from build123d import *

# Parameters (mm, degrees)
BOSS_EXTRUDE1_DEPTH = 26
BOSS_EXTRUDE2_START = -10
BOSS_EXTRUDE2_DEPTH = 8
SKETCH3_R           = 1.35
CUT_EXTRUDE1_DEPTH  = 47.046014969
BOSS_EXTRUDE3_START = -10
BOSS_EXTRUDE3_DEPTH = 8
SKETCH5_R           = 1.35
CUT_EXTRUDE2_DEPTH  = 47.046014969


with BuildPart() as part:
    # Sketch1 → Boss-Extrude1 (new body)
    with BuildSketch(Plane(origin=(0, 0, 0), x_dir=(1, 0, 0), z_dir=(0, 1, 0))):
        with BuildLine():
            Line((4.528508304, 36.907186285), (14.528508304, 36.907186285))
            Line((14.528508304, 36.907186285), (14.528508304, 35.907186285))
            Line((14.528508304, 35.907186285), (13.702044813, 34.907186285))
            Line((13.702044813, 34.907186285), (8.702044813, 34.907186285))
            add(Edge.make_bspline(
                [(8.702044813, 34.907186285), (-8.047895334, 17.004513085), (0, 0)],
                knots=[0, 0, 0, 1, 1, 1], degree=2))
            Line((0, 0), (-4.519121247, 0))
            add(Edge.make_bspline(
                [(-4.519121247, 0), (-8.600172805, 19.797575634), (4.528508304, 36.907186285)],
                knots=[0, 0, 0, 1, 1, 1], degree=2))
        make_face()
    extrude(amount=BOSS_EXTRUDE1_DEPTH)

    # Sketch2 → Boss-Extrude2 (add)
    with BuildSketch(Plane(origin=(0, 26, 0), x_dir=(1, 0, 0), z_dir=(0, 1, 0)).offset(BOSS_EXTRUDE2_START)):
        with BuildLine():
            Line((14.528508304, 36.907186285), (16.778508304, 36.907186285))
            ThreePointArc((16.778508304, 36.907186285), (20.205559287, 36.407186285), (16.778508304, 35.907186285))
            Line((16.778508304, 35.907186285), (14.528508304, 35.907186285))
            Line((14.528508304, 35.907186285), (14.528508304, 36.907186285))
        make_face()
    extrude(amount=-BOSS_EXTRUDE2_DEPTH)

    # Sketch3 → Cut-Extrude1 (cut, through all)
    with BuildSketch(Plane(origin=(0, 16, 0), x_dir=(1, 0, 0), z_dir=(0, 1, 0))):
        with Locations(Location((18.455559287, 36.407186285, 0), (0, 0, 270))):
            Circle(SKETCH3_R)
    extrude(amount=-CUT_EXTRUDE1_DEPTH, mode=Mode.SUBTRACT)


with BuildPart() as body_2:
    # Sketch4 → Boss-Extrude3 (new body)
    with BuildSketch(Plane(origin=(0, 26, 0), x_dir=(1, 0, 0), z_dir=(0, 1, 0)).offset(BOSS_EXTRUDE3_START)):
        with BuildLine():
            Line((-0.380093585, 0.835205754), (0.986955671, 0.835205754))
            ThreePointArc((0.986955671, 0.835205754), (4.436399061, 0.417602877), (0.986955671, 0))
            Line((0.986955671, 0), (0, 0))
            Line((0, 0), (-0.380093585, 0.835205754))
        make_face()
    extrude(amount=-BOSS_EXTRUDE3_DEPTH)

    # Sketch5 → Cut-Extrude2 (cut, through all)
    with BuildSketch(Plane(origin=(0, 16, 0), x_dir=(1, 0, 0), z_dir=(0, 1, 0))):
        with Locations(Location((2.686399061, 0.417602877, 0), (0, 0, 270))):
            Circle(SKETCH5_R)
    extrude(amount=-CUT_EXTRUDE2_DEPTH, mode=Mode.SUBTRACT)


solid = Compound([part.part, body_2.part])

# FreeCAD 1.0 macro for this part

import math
import FreeCAD as App
import Part
import Sketcher

V = App.Vector
Q = App.Units.Quantity

doc = App.newDocument("Part")
params = doc.addObject("Spreadsheet::Sheet", "Params")
for row, (alias, value) in enumerate([
    ("sketch1_width", "10 mm"),
    ("sketch1_width2", "5 mm"),
    ("sketch1_height", "1 mm"),
    ("pad1_length", "26 mm"),
    ("sketch2_height", "1 mm"),
    ("sketch2_radius", "1.75 mm"),
    ("sketch2_width", "2.25 mm"),
    ("pad2_length", "8 mm"),
    ("sketch3_diameter", "2.7 mm"),
    ("sketch4_radius", "1.75 mm"),
    ("pad3_length", "8 mm"),
    ("sketch5_diameter", "2.7 mm"),
], start=1):
    params.set(f"A{row}", alias)
    params.set(f"B{row}", "=" + value)
    params.setAlias(f"B{row}", alias)

body = doc.addObject("PartDesign::Body", "Body")

# Sketch on XZ plane
sketch1 = doc.addObject("Sketcher::SketchObject", "Sketch")
body.addObject(sketch1)
sketch1.AttachmentSupport = (doc.XZ_Plane, [""])
sketch1.MapMode = "FlatFace"
sketch1.addGeometry(Part.LineSegment(V(14.528508, -36.907186, 0), V(4.528508, -36.907186, 0)), False)
sketch1.addGeometry(Part.BSplineCurve([V(-4.519121, 0, 0), V(-8.600173, -19.797576, 0), V(4.528508, -36.907186, 0)], [3, 3], [0, 1], False, 2, [1, 1, 1], False), False)
sketch1.addGeometry(Part.LineSegment(V(-4.519121, 0, 0), V(0, 0, 0)), False)
sketch1.addGeometry(Part.BSplineCurve([V(8.702045, -34.907186, 0), V(-8.047895, -17.004513, 0), V(0, 0, 0)], [3, 3], [0, 1], False, 2, [1, 1, 1], False), False)
sketch1.addGeometry(Part.LineSegment(V(8.702045, -34.907186, 0), V(13.702045, -34.907186, 0)), False)
sketch1.addGeometry(Part.LineSegment(V(13.702045, -34.907186, 0), V(14.528508, -35.907186, 0)), False)
sketch1.addGeometry(Part.LineSegment(V(14.528508, -35.907186, 0), V(14.528508, -36.907186, 0)), False)
sketch1.addConstraint(Sketcher.Constraint("Block", 1))
sketch1.addConstraint(Sketcher.Constraint("Block", 3))
sketch1.addConstraint(Sketcher.Constraint("Coincident", 0, 2, 1, 2))
sketch1.addConstraint(Sketcher.Constraint("Coincident", 1, 1, 2, 1))
sketch1.addConstraint(Sketcher.Constraint("Coincident", 2, 2, 3, 2))
sketch1.addConstraint(Sketcher.Constraint("Coincident", 3, 1, 4, 1))
sketch1.addConstraint(Sketcher.Constraint("Coincident", 4, 2, 5, 1))
sketch1.addConstraint(Sketcher.Constraint("Coincident", 5, 2, 6, 1))
sketch1.addConstraint(Sketcher.Constraint("Coincident", 6, 2, 0, 1))
sketch1.addConstraint(Sketcher.Constraint("Horizontal", 0))
sketch1.addConstraint(Sketcher.Constraint("Horizontal", 4))
sketch1.addConstraint(Sketcher.Constraint("Vertical", 6))
sketch1.addConstraint(Sketcher.Constraint("DistanceX", 0, 2, 0, 1, Q("10 mm")))
sketch1.addConstraint(Sketcher.Constraint("DistanceX", 4, 1, 4, 2, Q("5 mm")))
sketch1.addConstraint(Sketcher.Constraint("DistanceY", 6, 2, 6, 1, Q("1 mm")))
sketch1.setExpression("Constraints[12]", "Params.sketch1_width")
sketch1.setExpression("Constraints[13]", "Params.sketch1_width2")
sketch1.setExpression("Constraints[14]", "Params.sketch1_height")
pad1 = doc.addObject("PartDesign::Pad", "Pad")
body.addObject(pad1)
pad1.Profile = sketch1
pad1.setExpression("Length", "Params.pad1_length")
pad1.Reversed = True

# Sketch on XZ plane
sketch2 = doc.addObject("Sketcher::SketchObject", "Sketch001")
body.addObject(sketch2)
sketch2.AttachmentSupport = (doc.XZ_Plane, [""])
sketch2.MapMode = "FlatFace"
sketch2.AttachmentOffset = App.Placement(V(0, 0, -16), App.Rotation())
sketch2.addGeometry(Part.LineSegment(V(16.8, -36.9, 0), V(14.5, -36.9, 0)), False)
sketch2.addGeometry(Part.LineSegment(V(14.5, -36.9, 0), V(14.5, -35.9, 0)), False)
sketch2.addGeometry(Part.LineSegment(V(14.5, -35.9, 0), V(16.8, -35.9, 0)), False)
sketch2.addGeometry(Part.ArcOfCircle(Part.Circle(V(18.5, -36.4, 0), V(0, 0, 1), 1.8), math.radians(-163), math.radians(163)), False)
sketch2.addConstraint(Sketcher.Constraint("Coincident", 0, 2, 1, 1))
sketch2.addConstraint(Sketcher.Constraint("Coincident", 1, 2, 2, 1))
sketch2.addConstraint(Sketcher.Constraint("Coincident", 2, 2, 3, 2))
sketch2.addConstraint(Sketcher.Constraint("Coincident", 3, 1, 0, 1))
sketch2.addConstraint(Sketcher.Constraint("Horizontal", 0))
sketch2.addConstraint(Sketcher.Constraint("Vertical", 1))
sketch2.addConstraint(Sketcher.Constraint("Horizontal", 2))
sketch2.addConstraint(Sketcher.Constraint("Vertical", 2, 2, 3, 1))
sketch2.addConstraint(Sketcher.Constraint("DistanceY", 1, 1, 1, 2, Q("1 mm")))
sketch2.addConstraint(Sketcher.Constraint("Radius", 3, Q("1.75 mm")))
sketch2.addConstraint(Sketcher.Constraint("DistanceX", 0, 2, 0, 1, Q("2.25 mm")))
sketch2.addConstraint(Sketcher.Constraint("DistanceX", -1, 1, 3, 3, Q("18.455559 mm")))
sketch2.addConstraint(Sketcher.Constraint("DistanceY", 3, 3, -1, 1, Q("36.407186 mm")))
sketch2.setExpression("Constraints[8]", "Params.sketch2_height")
sketch2.setExpression("Constraints[9]", "Params.sketch2_radius")
sketch2.setExpression("Constraints[10]", "Params.sketch2_width")
pad2 = doc.addObject("PartDesign::Pad", "Pad001")
body.addObject(pad2)
pad2.Profile = sketch2
pad2.setExpression("Length", "Params.pad2_length")

# Sketch on XZ plane
sketch3 = doc.addObject("Sketcher::SketchObject", "Sketch002")
body.addObject(sketch3)
sketch3.AttachmentSupport = (doc.XZ_Plane, [""])
sketch3.MapMode = "FlatFace"
sketch3.AttachmentOffset = App.Placement(V(0, 0, -16), App.Rotation())
sketch3.addGeometry(Part.Circle(V(18.5, -36.4, 0), V(0, 0, 1), 1.4), False)
sketch3.addConstraint(Sketcher.Constraint("Diameter", 0, Q("2.7 mm")))
sketch3.addConstraint(Sketcher.Constraint("DistanceX", -1, 1, 0, 3, Q("18.455559 mm")))
sketch3.addConstraint(Sketcher.Constraint("DistanceY", 0, 3, -1, 1, Q("36.407186 mm")))
sketch3.setExpression("Constraints[0]", "Params.sketch3_diameter")
pocket1 = doc.addObject("PartDesign::Pocket", "Pocket")
body.addObject(pocket1)
pocket1.Profile = sketch3
pocket1.Type = "ThroughAll"
pocket1.Reversed = True
body2 = doc.addObject("PartDesign::Body", "Body001")

# Sketch on XZ plane
sketch4 = doc.addObject("Sketcher::SketchObject", "Sketch003")
body2.addObject(sketch4)
sketch4.AttachmentSupport = (doc.getObject("XZ_Plane001"), [""])
sketch4.MapMode = "FlatFace"
sketch4.AttachmentOffset = App.Placement(V(0, 0, -16), App.Rotation())
sketch4.addGeometry(Part.LineSegment(V(1, -0.8, 0), V(-0.4, -0.8, 0)), False)
sketch4.addGeometry(Part.LineSegment(V(-0.4, -0.8, 0), V(0, 0, 0)), False)
sketch4.addGeometry(Part.LineSegment(V(0, 0, 0), V(1, 0, 0)), False)
sketch4.addGeometry(Part.ArcOfCircle(Part.Circle(V(2.7, -0.4, 0), V(0, 0, 1), 1.8), math.radians(-166), math.radians(166)), False)
sketch4.addConstraint(Sketcher.Constraint("Coincident", 0, 2, 1, 1))
sketch4.addConstraint(Sketcher.Constraint("Coincident", 1, 2, 2, 1))
sketch4.addConstraint(Sketcher.Constraint("Coincident", 2, 2, 3, 2))
sketch4.addConstraint(Sketcher.Constraint("Coincident", 3, 1, 0, 1))
sketch4.addConstraint(Sketcher.Constraint("Horizontal", 0))
sketch4.addConstraint(Sketcher.Constraint("Horizontal", 2))
sketch4.addConstraint(Sketcher.Constraint("Coincident", 1, 2, -1, 1))
sketch4.addConstraint(Sketcher.Constraint("Vertical", 2, 2, 3, 1))
sketch4.addConstraint(Sketcher.Constraint("Radius", 3, Q("1.75 mm")))
sketch4.addConstraint(Sketcher.Constraint("DistanceX", 0, 2, 0, 1, Q("1.367049 mm")))
sketch4.addConstraint(Sketcher.Constraint("DistanceX", -1, 1, 3, 3, Q("2.686399 mm")))
sketch4.addConstraint(Sketcher.Constraint("DistanceX", 2, 1, 2, 2, Q("0.986956 mm")))
sketch4.setExpression("Constraints[8]", "Params.sketch4_radius")
pad3 = doc.addObject("PartDesign::Pad", "Pad002")
body2.addObject(pad3)
pad3.Profile = sketch4
pad3.setExpression("Length", "Params.pad3_length")

# Sketch on XZ plane
sketch5 = doc.addObject("Sketcher::SketchObject", "Sketch004")
body2.addObject(sketch5)
sketch5.AttachmentSupport = (doc.getObject("XZ_Plane001"), [""])
sketch5.MapMode = "FlatFace"
sketch5.AttachmentOffset = App.Placement(V(0, 0, -16), App.Rotation())
sketch5.addGeometry(Part.Circle(V(2.7, -0.4, 0), V(0, 0, 1), 1.4), False)
sketch5.addConstraint(Sketcher.Constraint("Diameter", 0, Q("2.7 mm")))
sketch5.addConstraint(Sketcher.Constraint("DistanceX", -1, 1, 0, 3, Q("2.686399 mm")))
sketch5.addConstraint(Sketcher.Constraint("DistanceY", 0, 3, -1, 1, Q("0.417603 mm")))
sketch5.setExpression("Constraints[0]", "Params.sketch5_diameter")
pocket2 = doc.addObject("PartDesign::Pocket", "Pocket001")
body2.addObject(pocket2)
pocket2.Profile = sketch5
pocket2.Type = "ThroughAll"
pocket2.Reversed = True

doc.recompute()
